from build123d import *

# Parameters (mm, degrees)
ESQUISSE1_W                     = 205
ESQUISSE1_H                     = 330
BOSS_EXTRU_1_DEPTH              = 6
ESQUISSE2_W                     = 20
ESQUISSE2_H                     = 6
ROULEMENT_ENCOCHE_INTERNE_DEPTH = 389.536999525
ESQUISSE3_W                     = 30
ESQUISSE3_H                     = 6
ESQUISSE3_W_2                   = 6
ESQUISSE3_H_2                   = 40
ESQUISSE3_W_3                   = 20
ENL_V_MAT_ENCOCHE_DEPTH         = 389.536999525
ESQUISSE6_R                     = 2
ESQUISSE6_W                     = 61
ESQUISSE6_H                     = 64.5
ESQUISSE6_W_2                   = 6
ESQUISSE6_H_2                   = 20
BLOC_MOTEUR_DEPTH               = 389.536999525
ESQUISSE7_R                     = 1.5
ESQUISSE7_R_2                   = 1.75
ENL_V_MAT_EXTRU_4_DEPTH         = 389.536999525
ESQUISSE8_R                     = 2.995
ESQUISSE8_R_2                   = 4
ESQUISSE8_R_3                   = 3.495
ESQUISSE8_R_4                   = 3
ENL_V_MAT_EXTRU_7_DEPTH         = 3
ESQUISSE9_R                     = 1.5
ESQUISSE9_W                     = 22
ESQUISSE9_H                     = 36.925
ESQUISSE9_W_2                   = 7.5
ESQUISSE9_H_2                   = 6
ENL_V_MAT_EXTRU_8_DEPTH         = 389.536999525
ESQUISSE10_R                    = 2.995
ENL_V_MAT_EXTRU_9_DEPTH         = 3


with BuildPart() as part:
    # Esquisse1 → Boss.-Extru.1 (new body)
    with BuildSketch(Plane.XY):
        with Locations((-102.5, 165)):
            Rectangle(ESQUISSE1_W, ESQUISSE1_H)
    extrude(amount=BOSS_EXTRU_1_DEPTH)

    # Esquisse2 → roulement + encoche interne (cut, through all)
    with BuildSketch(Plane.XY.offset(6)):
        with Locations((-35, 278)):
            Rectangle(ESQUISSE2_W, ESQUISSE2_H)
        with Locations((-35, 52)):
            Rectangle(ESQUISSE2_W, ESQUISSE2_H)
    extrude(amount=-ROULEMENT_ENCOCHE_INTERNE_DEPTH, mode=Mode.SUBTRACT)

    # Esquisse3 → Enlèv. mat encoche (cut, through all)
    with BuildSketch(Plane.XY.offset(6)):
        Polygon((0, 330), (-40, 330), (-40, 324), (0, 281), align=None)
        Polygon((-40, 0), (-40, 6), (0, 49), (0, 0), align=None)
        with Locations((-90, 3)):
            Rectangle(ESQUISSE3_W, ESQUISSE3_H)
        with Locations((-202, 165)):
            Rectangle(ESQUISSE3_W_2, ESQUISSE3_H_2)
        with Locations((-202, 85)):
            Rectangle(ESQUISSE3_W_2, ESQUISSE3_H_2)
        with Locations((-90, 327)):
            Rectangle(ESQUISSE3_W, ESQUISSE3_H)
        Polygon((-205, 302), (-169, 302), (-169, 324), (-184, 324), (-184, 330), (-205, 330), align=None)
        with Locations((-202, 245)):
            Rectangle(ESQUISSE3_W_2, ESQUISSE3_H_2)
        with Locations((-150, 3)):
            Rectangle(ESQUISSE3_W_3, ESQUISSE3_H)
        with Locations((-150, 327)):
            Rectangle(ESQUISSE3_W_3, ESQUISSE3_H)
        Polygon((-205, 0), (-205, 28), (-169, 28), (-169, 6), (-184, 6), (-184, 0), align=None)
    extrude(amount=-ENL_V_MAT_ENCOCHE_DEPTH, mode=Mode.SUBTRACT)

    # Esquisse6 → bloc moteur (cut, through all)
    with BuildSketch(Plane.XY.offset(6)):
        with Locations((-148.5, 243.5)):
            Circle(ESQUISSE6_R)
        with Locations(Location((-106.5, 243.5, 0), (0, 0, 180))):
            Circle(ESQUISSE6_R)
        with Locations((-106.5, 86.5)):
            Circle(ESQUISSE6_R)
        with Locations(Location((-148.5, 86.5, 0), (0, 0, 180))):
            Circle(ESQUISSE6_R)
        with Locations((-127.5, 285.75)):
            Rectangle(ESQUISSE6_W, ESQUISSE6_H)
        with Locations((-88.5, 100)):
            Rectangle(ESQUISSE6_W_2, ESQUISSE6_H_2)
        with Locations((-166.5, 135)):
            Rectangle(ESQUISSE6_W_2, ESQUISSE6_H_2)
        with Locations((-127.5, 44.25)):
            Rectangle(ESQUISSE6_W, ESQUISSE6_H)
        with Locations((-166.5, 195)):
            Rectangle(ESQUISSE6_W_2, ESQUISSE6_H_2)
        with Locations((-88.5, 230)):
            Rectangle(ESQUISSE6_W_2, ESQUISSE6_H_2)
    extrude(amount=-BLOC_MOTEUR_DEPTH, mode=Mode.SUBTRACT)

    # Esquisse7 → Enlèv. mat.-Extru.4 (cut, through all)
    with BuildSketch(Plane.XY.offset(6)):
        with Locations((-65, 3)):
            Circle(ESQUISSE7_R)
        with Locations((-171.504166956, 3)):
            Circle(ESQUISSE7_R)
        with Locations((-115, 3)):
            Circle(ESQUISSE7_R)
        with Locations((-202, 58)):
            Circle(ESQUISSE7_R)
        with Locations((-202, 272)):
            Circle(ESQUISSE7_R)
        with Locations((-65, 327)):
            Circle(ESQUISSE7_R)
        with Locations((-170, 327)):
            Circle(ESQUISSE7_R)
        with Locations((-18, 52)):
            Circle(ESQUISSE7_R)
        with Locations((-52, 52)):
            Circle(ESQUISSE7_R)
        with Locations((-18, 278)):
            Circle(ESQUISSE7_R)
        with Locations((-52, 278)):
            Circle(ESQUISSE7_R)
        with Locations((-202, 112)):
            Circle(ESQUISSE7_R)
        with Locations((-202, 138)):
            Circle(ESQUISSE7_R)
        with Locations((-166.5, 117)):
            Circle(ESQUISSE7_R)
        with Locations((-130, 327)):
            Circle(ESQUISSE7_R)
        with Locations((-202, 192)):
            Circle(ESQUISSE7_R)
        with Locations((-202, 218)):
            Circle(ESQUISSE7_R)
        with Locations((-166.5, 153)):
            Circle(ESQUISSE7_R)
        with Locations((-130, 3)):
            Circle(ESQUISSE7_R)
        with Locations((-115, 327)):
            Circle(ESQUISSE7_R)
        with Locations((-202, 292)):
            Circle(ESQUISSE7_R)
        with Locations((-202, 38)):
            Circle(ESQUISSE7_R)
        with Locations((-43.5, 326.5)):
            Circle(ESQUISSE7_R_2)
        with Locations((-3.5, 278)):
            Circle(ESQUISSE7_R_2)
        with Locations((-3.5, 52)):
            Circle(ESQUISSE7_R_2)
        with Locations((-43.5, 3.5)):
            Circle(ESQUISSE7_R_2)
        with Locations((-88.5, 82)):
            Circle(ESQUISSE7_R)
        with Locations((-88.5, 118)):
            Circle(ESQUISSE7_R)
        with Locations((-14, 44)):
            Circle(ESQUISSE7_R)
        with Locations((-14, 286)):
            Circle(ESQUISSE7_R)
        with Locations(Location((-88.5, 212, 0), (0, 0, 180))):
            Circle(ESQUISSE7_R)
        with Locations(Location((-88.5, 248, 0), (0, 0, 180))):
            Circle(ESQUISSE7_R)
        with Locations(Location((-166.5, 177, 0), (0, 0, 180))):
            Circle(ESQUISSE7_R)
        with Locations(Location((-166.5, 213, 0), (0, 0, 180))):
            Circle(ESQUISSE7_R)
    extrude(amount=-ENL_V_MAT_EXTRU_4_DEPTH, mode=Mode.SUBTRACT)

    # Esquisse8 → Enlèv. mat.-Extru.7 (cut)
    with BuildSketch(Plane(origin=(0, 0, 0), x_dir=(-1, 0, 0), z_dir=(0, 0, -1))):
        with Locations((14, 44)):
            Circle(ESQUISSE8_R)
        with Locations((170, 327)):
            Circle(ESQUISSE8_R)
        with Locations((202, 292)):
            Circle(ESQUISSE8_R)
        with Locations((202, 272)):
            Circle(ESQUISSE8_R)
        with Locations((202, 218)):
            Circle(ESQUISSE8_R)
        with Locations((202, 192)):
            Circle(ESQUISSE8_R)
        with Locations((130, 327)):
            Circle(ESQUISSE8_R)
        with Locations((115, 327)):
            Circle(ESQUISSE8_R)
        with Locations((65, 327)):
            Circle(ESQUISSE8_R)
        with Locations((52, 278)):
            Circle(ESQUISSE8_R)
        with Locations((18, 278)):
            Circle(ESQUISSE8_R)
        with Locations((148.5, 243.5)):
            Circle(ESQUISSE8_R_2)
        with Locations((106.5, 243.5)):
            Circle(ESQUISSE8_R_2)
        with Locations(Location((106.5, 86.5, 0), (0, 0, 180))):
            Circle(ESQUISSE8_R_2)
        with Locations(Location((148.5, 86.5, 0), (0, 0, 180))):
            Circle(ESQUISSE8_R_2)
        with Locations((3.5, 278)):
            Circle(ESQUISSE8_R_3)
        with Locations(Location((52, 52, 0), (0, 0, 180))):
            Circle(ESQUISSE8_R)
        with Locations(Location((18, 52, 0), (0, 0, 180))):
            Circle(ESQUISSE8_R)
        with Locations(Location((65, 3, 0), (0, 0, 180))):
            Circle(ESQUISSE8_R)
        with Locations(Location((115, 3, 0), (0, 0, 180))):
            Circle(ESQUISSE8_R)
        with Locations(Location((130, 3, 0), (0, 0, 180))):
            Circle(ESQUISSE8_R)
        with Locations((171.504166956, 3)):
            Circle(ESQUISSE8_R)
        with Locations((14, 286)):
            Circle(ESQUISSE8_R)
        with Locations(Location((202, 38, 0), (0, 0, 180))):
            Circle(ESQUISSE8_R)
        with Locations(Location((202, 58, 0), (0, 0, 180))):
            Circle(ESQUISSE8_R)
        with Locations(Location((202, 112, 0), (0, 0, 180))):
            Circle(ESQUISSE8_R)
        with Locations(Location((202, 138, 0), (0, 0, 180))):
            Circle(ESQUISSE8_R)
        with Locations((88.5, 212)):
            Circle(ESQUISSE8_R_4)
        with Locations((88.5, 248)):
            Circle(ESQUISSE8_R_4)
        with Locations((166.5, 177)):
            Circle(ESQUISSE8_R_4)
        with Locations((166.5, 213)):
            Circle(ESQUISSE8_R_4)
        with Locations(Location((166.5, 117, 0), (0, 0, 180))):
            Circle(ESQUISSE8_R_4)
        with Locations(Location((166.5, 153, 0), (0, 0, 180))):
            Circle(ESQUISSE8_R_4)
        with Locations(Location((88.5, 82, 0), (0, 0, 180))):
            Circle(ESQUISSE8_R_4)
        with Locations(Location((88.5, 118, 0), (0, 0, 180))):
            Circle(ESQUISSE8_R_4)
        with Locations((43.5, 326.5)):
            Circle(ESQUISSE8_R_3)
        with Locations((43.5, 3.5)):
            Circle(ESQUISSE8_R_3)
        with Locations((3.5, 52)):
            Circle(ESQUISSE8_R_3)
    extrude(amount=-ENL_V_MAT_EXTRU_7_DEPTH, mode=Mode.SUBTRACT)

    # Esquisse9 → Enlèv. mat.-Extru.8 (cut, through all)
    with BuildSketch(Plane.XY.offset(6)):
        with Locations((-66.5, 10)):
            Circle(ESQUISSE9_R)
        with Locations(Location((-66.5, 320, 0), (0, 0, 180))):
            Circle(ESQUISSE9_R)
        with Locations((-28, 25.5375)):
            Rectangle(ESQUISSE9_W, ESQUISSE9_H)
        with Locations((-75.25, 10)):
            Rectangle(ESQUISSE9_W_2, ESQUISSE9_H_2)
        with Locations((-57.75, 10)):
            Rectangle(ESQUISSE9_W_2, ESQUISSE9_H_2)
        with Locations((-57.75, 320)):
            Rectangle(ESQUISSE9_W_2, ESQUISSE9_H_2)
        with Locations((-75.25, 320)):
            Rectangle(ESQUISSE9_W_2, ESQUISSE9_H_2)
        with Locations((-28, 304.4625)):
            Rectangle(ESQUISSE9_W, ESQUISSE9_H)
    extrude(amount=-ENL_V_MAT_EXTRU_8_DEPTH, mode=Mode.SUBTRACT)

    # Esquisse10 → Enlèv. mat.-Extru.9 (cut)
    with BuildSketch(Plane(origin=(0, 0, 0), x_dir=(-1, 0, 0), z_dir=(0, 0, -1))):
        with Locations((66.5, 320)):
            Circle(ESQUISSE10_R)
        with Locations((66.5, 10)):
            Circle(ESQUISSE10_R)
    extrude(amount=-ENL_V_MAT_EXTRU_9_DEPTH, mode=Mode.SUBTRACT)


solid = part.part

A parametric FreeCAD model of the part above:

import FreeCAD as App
import Part
import Sketcher
Q = App.Units.Quantity


def add_polygon(sketch, points):
    """Adds a closed chain of lines whose ends are joined by coincident constraints."""
    first, n = sketch.GeometryCount, len(points)
    for a, b in zip(points, points[1:] + points[:1]):
        sketch.addGeometry(Part.LineSegment(App.Vector(*a, 0), App.Vector(*b, 0)), False)
    for i in range(n):
        sketch.addConstraint(Sketcher.Constraint("Coincident", first + i, 2, first + (i + 1) % n, 1))

doc = App.newDocument("Part")
body = doc.addObject("PartDesign::Body", "Body")

sketch1 = body.newObject("Sketcher::SketchObject", "Sketch")
sketch1.AttachmentSupport = (doc.getObject("XY_Plane"), [""])
sketch1.MapMode = "FlatFace"
add_polygon(sketch1, [(-205, 330), (-205, 0), (0, 0), (0, 330)])
sketch1.addConstraint(Sketcher.Constraint("Vertical", 0))
sketch1.addConstraint(Sketcher.Constraint("Horizontal", 1))
sketch1.addConstraint(Sketcher.Constraint("Vertical", 2))
sketch1.addConstraint(Sketcher.Constraint("Horizontal", 3))
sketch1.addConstraint(Sketcher.Constraint("Coincident", 1, 2, -1, 1))
sketch1.addConstraint(Sketcher.Constraint("DistanceX", 1, 1, 1, 2, Q("205 mm")))
sketch1.addConstraint(Sketcher.Constraint("DistanceY", 0, 2, 0, 1, Q("330 mm")))
pad1 = body.newObject("PartDesign::Pad", "Pad")
pad1.Profile = sketch1
pad1.Length = 6

sketch2 = body.newObject("Sketcher::SketchObject", "Sketch001")
sketch2.AttachmentSupport = (doc.getObject("XY_Plane"), [""])
sketch2.MapMode = "FlatFace"
sketch2.AttachmentOffset = App.Placement(App.Vector(0, 0, 6), App.Rotation())
add_polygon(sketch2, [(-45, 281), (-45, 275), (-25, 275), (-25, 281)])
add_polygon(sketch2, [(-45, 55), (-45, 49), (-25, 49), (-25, 55)])
sketch2.addConstraint(Sketcher.Constraint("Vertical", 0))
sketch2.addConstraint(Sketcher.Constraint("Horizontal", 1))
sketch2.addConstraint(Sketcher.Constraint("Vertical", 2))
sketch2.addConstraint(Sketcher.Constraint("Horizontal", 3))
sketch2.addConstraint(Sketcher.Constraint("Vertical", 4))
sketch2.addConstraint(Sketcher.Constraint("Horizontal", 5))
sketch2.addConstraint(Sketcher.Constraint("Vertical", 6))
sketch2.addConstraint(Sketcher.Constraint("Horizontal", 7))
sketch2.addConstraint(Sketcher.Constraint("Vertical", 3, 2, 4, 2))
sketch2.addConstraint(Sketcher.Constraint("Vertical", 2, 2, 5, 2))
sketch2.addConstraint(Sketcher.Constraint("Equal", 2, 4))
sketch2.addConstraint(Sketcher.Constraint("DistanceX", 1, 1, 1, 2, Q("20 mm")))
sketch2.addConstraint(Sketcher.Constraint("DistanceY", 0, 2, 0, 1, Q("6 mm")))
sketch2.addConstraint(Sketcher.Constraint("DistanceX", 0, 2, -1, 1, Q("45 mm")))
sketch2.addConstraint(Sketcher.Constraint("DistanceY", -1, 1, 0, 2, Q("275 mm")))
sketch2.addConstraint(Sketcher.Constraint("DistanceY", -1, 1, 4, 2, Q("49 mm")))
pocket1 = body.newObject("PartDesign::Pocket", "Pocket")
pocket1.Profile = sketch2
pocket1.Type = "ThroughAll"

sketch3 = body.newObject("Sketcher::SketchObject", "Sketch002")
sketch3.AttachmentSupport = (doc.getObject("XY_Plane"), [""])
sketch3.MapMode = "FlatFace"
sketch3.AttachmentOffset = App.Placement(App.Vector(0, 0, 6), App.Rotation())
add_polygon(sketch3, [(0, 330), (-40, 330), (-40, 324), (0, 281)])
add_polygon(sketch3, [(-40, 6), (-40, 0), (0, 0), (0, 49)])
add_polygon(sketch3, [(-105, 6), (-105, 0), (-75, 0), (-75, 6)])
add_polygon(sketch3, [(-205, 185), (-205, 145), (-199, 145), (-199, 185)])
add_polygon(sketch3, [(-205, 105), (-205, 65), (-199, 65), (-199, 105)])
add_polygon(sketch3, [(-105, 330), (-105, 324), (-75, 324), (-75, 330)])
add_polygon(sketch3, [(-205, 302), (-169, 302), (-169, 324), (-184, 324), (-184, 330), (-205, 330)])
add_polygon(sketch3, [(-205, 265), (-205, 225), (-199, 225), (-199, 265)])
add_polygon(sketch3, [(-160, 6), (-160, 0), (-140, 0), (-140, 6)])
add_polygon(sketch3, [(-160, 330), (-160, 324), (-140, 324), (-140, 330)])
add_polygon(sketch3, [(-205, 28), (-205, 0), (-184, 0), (-184, 6), (-169, 6), (-169, 28)])
sketch3.addConstraint(Sketcher.Constraint("Horizontal", 0))
sketch3.addConstraint(Sketcher.Constraint("Vertical", 1))
sketch3.addConstraint(Sketcher.Constraint("Vertical", 3))
sketch3.addConstraint(Sketcher.Constraint("Vertical", 4))
sketch3.addConstraint(Sketcher.Constraint("Horizontal", 5))
sketch3.addConstraint(Sketcher.Constraint("Vertical", 6))
sketch3.addConstraint(Sketcher.Constraint("Vertical", 8))
sketch3.addConstraint(Sketcher.Constraint("Horizontal", 9))
sketch3.addConstraint(Sketcher.Constraint("Vertical", 10))
sketch3.addConstraint(Sketcher.Constraint("Horizontal", 11))
sketch3.addConstraint(Sketcher.Constraint("Vertical", 12))
sketch3.addConstraint(Sketcher.Constraint("Horizontal", 13))
sketch3.addConstraint(Sketcher.Constraint("Vertical", 14))
sketch3.addConstraint(Sketcher.Constraint("Horizontal", 15))
sketch3.addConstraint(Sketcher.Constraint("Vertical", 16))
sketch3.addConstraint(Sketcher.Constraint("Horizontal", 17))
sketch3.addConstraint(Sketcher.Constraint("Vertical", 18))
sketch3.addConstraint(Sketcher.Constraint("Horizontal", 19))
sketch3.addConstraint(Sketcher.Constraint("Vertical", 20))
sketch3.addConstraint(Sketcher.Constraint("Horizontal", 21))
sketch3.addConstraint(Sketcher.Constraint("Vertical", 22))
sketch3.addConstraint(Sketcher.Constraint("Horizontal", 23))
sketch3.addConstraint(Sketcher.Constraint("Horizontal", 24))
sketch3.addConstraint(Sketcher.Constraint("Vertical", 25))
sketch3.addConstraint(Sketcher.Constraint("Horizontal", 26))
sketch3.addConstraint(Sketcher.Constraint("Vertical", 27))
sketch3.addConstraint(Sketcher.Constraint("Horizontal", 28))
sketch3.addConstraint(Sketcher.Constraint("Vertical", 29))
sketch3.addConstraint(Sketcher.Constraint("Vertical", 30))
sketch3.addConstraint(Sketcher.Constraint("Horizontal", 31))
sketch3.addConstraint(Sketcher.Constraint("Vertical", 32))
sketch3.addConstraint(Sketcher.Constraint("Horizontal", 33))
sketch3.addConstraint(Sketcher.Constraint("Vertical", 34))
sketch3.addConstraint(Sketcher.Constraint("Horizontal", 35))
sketch3.addConstraint(Sketcher.Constraint("Vertical", 36))
sketch3.addConstraint(Sketcher.Constraint("Horizontal", 37))
sketch3.addConstraint(Sketcher.Constraint("Vertical", 38))
sketch3.addConstraint(Sketcher.Constraint("Horizontal", 39))
sketch3.addConstraint(Sketcher.Constraint("Vertical", 40))
sketch3.addConstraint(Sketcher.Constraint("Horizontal", 41))
sketch3.addConstraint(Sketcher.Constraint("Vertical", 42))
sketch3.addConstraint(Sketcher.Constraint("Horizontal", 43))
sketch3.addConstraint(Sketcher.Constraint("Vertical", 44))
sketch3.addConstraint(Sketcher.Constraint("Horizontal", 45))
sketch3.addConstraint(Sketcher.Constraint("Vertical", 46))
sketch3.addConstraint(Sketcher.Constraint("Horizontal", 47))
sketch3.addConstraint(Sketcher.Constraint("Coincident", 5, 2, -1, 1))
sketch3.addConstraint(Sketcher.Constraint("PointOnObject", 2, 2, -2))
sketch3.addConstraint(Sketcher.Constraint("PointOnObject", 8, 2, -1))
sketch3.addConstraint(Sketcher.Constraint("PointOnObject", 34, 2, -1))
sketch3.addConstraint(Sketcher.Constraint("PointOnObject", 42, 2, -1))
sketch3.addConstraint(Sketcher.Constraint("Horizontal", 7, 2, 10, 2))
sketch3.addConstraint(Sketcher.Constraint("Horizontal", 1, 2, 20, 2))
sketch3.addConstraint(Sketcher.Constraint("Horizontal", 3, 2, 22, 2))
sketch3.addConstraint(Sketcher.Constraint("Horizontal", 21, 2, 25, 2))
sketch3.addConstraint(Sketcher.Constraint("Horizontal", 23, 2, 27, 2))
sketch3.addConstraint(Sketcher.Constraint("Horizontal", 11, 2, 36, 2))
sketch3.addConstraint(Sketcher.Constraint("Horizontal", 26, 2, 38, 2))
sketch3.addConstraint(Sketcher.Constraint("Horizontal", 28, 2, 40, 2))
sketch3.addConstraint(Sketcher.Constraint("Horizontal", 37, 2, 44, 2))
sketch3.addConstraint(Sketcher.Constraint("Vertical", 1, 2, 4, 2))
sketch3.addConstraint(Sketcher.Constraint("Vertical", 15, 2, 16, 2))
sketch3.addConstraint(Sketcher.Constraint("Vertical", 14, 2, 17, 2))
sketch3.addConstraint(Sketcher.Constraint("Vertical", 11, 2, 20, 2))
sketch3.addConstraint(Sketcher.Constraint("Vertical", 10, 2, 21, 2))
sketch3.addConstraint(Sketcher.Constraint("Vertical", 19, 2, 28, 2))
sketch3.addConstraint(Sketcher.Constraint("Vertical", 29, 2, 30, 2))
sketch3.addConstraint(Sketcher.Constraint("Vertical", 18, 2, 31, 2))
sketch3.addConstraint(Sketcher.Constraint("Vertical", 37, 2, 38, 2))
sketch3.addConstraint(Sketcher.Constraint("Vertical", 36, 2, 39, 2))
sketch3.addConstraint(Sketcher.Constraint("Vertical", 33, 2, 42, 2))
sketch3.addConstraint(Sketcher.Constraint("Vertical", 27, 2, 43, 2))
sketch3.addConstraint(Sketcher.Constraint("Vertical", 25, 2, 45, 2))
sketch3.addConstraint(Sketcher.Constraint("Equal", 33, 1))
sketch3.addConstraint(Sketcher.Constraint("Equal", 1, 4))
sketch3.addConstraint(Sketcher.Constraint("Equal", 3, 6))
sketch3.addConstraint(Sketcher.Constraint("Equal", 5, 12))
sketch3.addConstraint(Sketcher.Constraint("Equal", 14, 16))
sketch3.addConstraint(Sketcher.Constraint("Equal", 18, 30))
sketch3.addConstraint(Sketcher.Constraint("Equal", 29, 42))
sketch3.addConstraint(Sketcher.Constraint("DistanceX", 0, 2, 0, 1, Q("40 mm")))
sketch3.addConstraint(Sketcher.Constraint("DistanceX", 9, 1, 9, 2, Q("30 mm")))
sketch3.addConstraint(Sketcher.Constraint("DistanceX", 13, 1, 13, 2, Q("6 mm")))
sketch3.addConstraint(Sketcher.Constraint("DistanceX", 24, 1, 24, 2, Q("36 mm")))
sketch3.addConstraint(Sketcher.Constraint("DistanceX", 26, 2, 26, 1, Q("15 mm")))
sketch3.addConstraint(Sketcher.Constraint("DistanceX", 35, 1, 35, 2, Q("20 mm")))
sketch3.addConstraint(Sketcher.Constraint("DistanceY", 3, 1, 3, 2, Q("49 mm")))
sketch3.addConstraint(Sketcher.Constraint("DistanceY", 25, 1, 25, 2, Q("22 mm")))
sketch3.addConstraint(Sketcher.Constraint("DistanceY", -1, 1, 0, 2, Q("330 mm")))
sketch3.addConstraint(Sketcher.Constraint("DistanceX", 8, 2, -1, 1, Q("105 mm")))
sketch3.addConstraint(Sketcher.Constraint("DistanceX", 12, 2, -1, 1, Q("205 mm")))
sketch3.addConstraint(Sketcher.Constraint("DistanceY", -1, 1, 12, 2, Q("145 mm")))
sketch3.addConstraint(Sketcher.Constraint("DistanceY", -1, 1, 16, 2, Q("65 mm")))
sketch3.addConstraint(Sketcher.Constraint("DistanceY", -1, 1, 30, 2, Q("225 mm")))
sketch3.addConstraint(Sketcher.Constraint("DistanceX", 34, 2, -1, 1, Q("160 mm")))
pocket2 = body.newObject("PartDesign::Pocket", "Pocket001")
pocket2.Profile = sketch3
pocket2.Type = "ThroughAll"

sketch4 = body.newObject("Sketcher::SketchObject", "Sketch003")
sketch4.AttachmentSupport = (doc.getObject("XY_Plane"), [""])
sketch4.MapMode = "FlatFace"
sketch4.AttachmentOffset = App.Placement(App.Vector(0, 0, 6), App.Rotation())
sketch4.addGeometry(Part.Circle(App.Vector(-148.5, 243.5, 0), App.Vector(0, 0, 1), 2), False)
sketch4.addGeometry(Part.Circle(App.Vector(-106.5, 243.5, 0), App.Vector(0, 0, 1), 2), False)
sketch4.addGeometry(Part.Circle(App.Vector(-106.5, 86.5, 0), App.Vector(0, 0, 1), 2), False)
sketch4.addGeometry(Part.Circle(App.Vector(-148.5, 86.5, 0), App.Vector(0, 0, 1), 2), False)
add_polygon(sketch4, [(-158, 318), (-158, 253.5), (-97, 253.5), (-97, 318)])
add_polygon(sketch4, [(-91.5, 110), (-91.5, 90), (-85.5, 90), (-85.5, 110)])
add_polygon(sketch4, [(-169.5, 145), (-169.5, 125), (-163.5, 125), (-163.5, 145)])
add_polygon(sketch4, [(-158, 76.5), (-158, 12), (-97, 12), (-97, 76.5)])
add_polygon(sketch4, [(-169.5, 205), (-169.5, 185), (-163.5, 185), (-163.5, 205)])
add_polygon(sketch4, [(-91.5, 240), (-91.5, 220), (-85.5, 220), (-85.5, 240)])
sketch4.addConstraint(Sketcher.Constraint("Vertical", 4))
sketch4.addConstraint(Sketcher.Constraint("Horizontal", 5))
sketch4.addConstraint(Sketcher.Constraint("Vertical", 6))
sketch4.addConstraint(Sketcher.Constraint("Horizontal", 7))
sketch4.addConstraint(Sketcher.Constraint("Vertical", 8))
sketch4.addConstraint(Sketcher.Constraint("Horizontal", 9))
sketch4.addConstraint(Sketcher.Constraint("Vertical", 10))
sketch4.addConstraint(Sketcher.Constraint("Horizontal", 11))
sketch4.addConstraint(Sketcher.Constraint("Vertical", 12))
sketch4.addConstraint(Sketcher.Constraint("Horizontal", 13))
sketch4.addConstraint(Sketcher.Constraint("Vertical", 14))
sketch4.addConstraint(Sketcher.Constraint("Horizontal", 15))
sketch4.addConstraint(Sketcher.Constraint("Vertical", 16))
sketch4.addConstraint(Sketcher.Constraint("Horizontal", 17))
sketch4.addConstraint(Sketcher.Constraint("Vertical", 18))
sketch4.addConstraint(Sketcher.Constraint("Horizontal", 19))
sketch4.addConstraint(Sketcher.Constraint("Vertical", 20))
sketch4.addConstraint(Sketcher.Constraint("Horizontal", 21))
sketch4.addConstraint(Sketcher.Constraint("Vertical", 22))
sketch4.addConstraint(Sketcher.Constraint("Horizontal", 23))
sketch4.addConstraint(Sketcher.Constraint("Vertical", 24))
sketch4.addConstraint(Sketcher.Constraint("Horizontal", 25))
sketch4.addConstraint(Sketcher.Constraint("Vertical", 26))
sketch4.addConstraint(Sketcher.Constraint("Horizontal", 27))
sketch4.addConstraint(Sketcher.Constraint("Equal", 0, 1))
sketch4.addConstraint(Sketcher.Constraint("Equal", 1, 2))
sketch4.addConstraint(Sketcher.Constraint("Equal", 2, 3))
sketch4.addConstraint(Sketcher.Constraint("Horizontal", 0, 3, 1, 3))
sketch4.addConstraint(Sketcher.Constraint("Horizontal", 2, 3, 3, 3))
sketch4.addConstraint(Sketcher.Constraint("Vertical", 1, 3, 2, 3))
sketch4.addConstraint(Sketcher.Constraint("Vertical", 0, 3, 3, 3))
sketch4.addConstraint(Sketcher.Constraint("Vertical", 7, 2, 16, 2))
sketch4.addConstraint(Sketcher.Constraint("Vertical", 6, 2, 17, 2))
sketch4.addConstraint(Sketcher.Constraint("Vertical", 15, 2, 20, 2))
sketch4.addConstraint(Sketcher.Constraint("Vertical", 14, 2, 21, 2))
sketch4.addConstraint(Sketcher.Constraint("Vertical", 11, 2, 24, 2))
sketch4.addConstraint(Sketcher.Constraint("Vertical", 10, 2, 25, 2))
sketch4.addConstraint(Sketcher.Constraint("Equal", 11, 13))
sketch4.addConstraint(Sketcher.Constraint("Equal", 10, 12))
sketch4.addConstraint(Sketcher.Constraint("Equal", 6, 16))
sketch4.addConstraint(Sketcher.Constraint("Equal", 14, 20))
sketch4.addConstraint(Sketcher.Constraint("Equal", 22, 24))
sketch4.addConstraint(Sketcher.Constraint("Diameter", 0, Q("4 mm")))
sketch4.addConstraint(Sketcher.Constraint("DistanceX", 5, 1, 5, 2, Q("61 mm")))
sketch4.addConstraint(Sketcher.Constraint("DistanceX", 9, 1, 9, 2, Q("6 mm")))
sketch4.addConstraint(Sketcher.Constraint("DistanceY", 8, 2, 8, 1, Q("20 mm")))
sketch4.addConstraint(Sketcher.Constraint("DistanceY", 4, 2, 4, 1, Q("64.5 mm")))
sketch4.addConstraint(Sketcher.Constraint("DistanceX", 4, 2, -1, 1, Q("158 mm")))
sketch4.addConstraint(Sketcher.Constraint("DistanceY", -1, 1, 6, 2, Q("318 mm")))
sketch4.addConstraint(Sketcher.Constraint("DistanceY", -1, 1, 8, 2, Q("90 mm")))
sketch4.addConstraint(Sketcher.Constraint("DistanceY", -1, 1, 12, 2, Q("125 mm")))
sketch4.addConstraint(Sketcher.Constraint("DistanceY", -1, 1, 16, 2, Q("12 mm")))
sketch4.addConstraint(Sketcher.Constraint("DistanceY", -1, 1, 20, 2, Q("185 mm")))
sketch4.addConstraint(Sketcher.Constraint("DistanceY", -1, 1, 24, 2, Q("220 mm")))
sketch4.addConstraint(Sketcher.Constraint("DistanceX", 0, 3, 1, 3, Q("42 mm")))
sketch4.addConstraint(Sketcher.Constraint("DistanceY", 2, 3, 1, 3, Q("157 mm")))
sketch4.addConstraint(Sketcher.Constraint("DistanceY", 0, 3, 4, 2, Q("10 mm")))
sketch4.addConstraint(Sketcher.Constraint("DistanceX", 2, 3, 8, 2, Q("15 mm")))
sketch4.addConstraint(Sketcher.Constraint("DistanceX", 12, 2, 3, 3, Q("21 mm")))
sketch4.addConstraint(Sketcher.Constraint("DistanceX", 0, 3, -1, 1, Q("148.5 mm")))
pocket3 = body.newObject("PartDesign::Pocket", "Pocket002")
pocket3.Profile = sketch4
pocket3.Type = "ThroughAll"

sketch5 = body.newObject("Sketcher::SketchObject", "Sketch004")
sketch5.AttachmentSupport = (doc.getObject("XY_Plane"), [""])
sketch5.MapMode = "FlatFace"
sketch5.AttachmentOffset = App.Placement(App.Vector(0, 0, 6), App.Rotation())
sketch5.addGeometry(Part.Circle(App.Vector(-65, 3, 0), App.Vector(0, 0, 1), 1.5), False)
sketch5.addGeometry(Part.Circle(App.Vector(-171.5, 3, 0), App.Vector(0, 0, 1), 1.5), False)
sketch5.addGeometry(Part.Circle(App.Vector(-115, 3, 0), App.Vector(0, 0, 1), 1.5), False)
sketch5.addGeometry(Part.Circle(App.Vector(-202, 58, 0), App.Vector(0, 0, 1), 1.5), False)
sketch5.addGeometry(Part.Circle(App.Vector(-202, 272, 0), App.Vector(0, 0, 1), 1.5), False)
sketch5.addGeometry(Part.Circle(App.Vector(-65, 327, 0), App.Vector(0, 0, 1), 1.5), False)
sketch5.addGeometry(Part.Circle(App.Vector(-170, 327, 0), App.Vector(0, 0, 1), 1.5), False)
sketch5.addGeometry(Part.Circle(App.Vector(-18, 52, 0), App.Vector(0, 0, 1), 1.5), False)
sketch5.addGeometry(Part.Circle(App.Vector(-52, 52, 0), App.Vector(0, 0, 1), 1.5), False)
sketch5.addGeometry(Part.Circle(App.Vector(-18, 278, 0), App.Vector(0, 0, 1), 1.5), False)
sketch5.addGeometry(Part.Circle(App.Vector(-52, 278, 0), App.Vector(0, 0, 1), 1.5), False)
sketch5.addGeometry(Part.Circle(App.Vector(-202, 112, 0), App.Vector(0, 0, 1), 1.5), False)
sketch5.addGeometry(Part.Circle(App.Vector(-202, 138, 0), App.Vector(0, 0, 1), 1.5), False)
sketch5.addGeometry(Part.Circle(App.Vector(-166.5, 117, 0), App.Vector(0, 0, 1), 1.5), False)
sketch5.addGeometry(Part.Circle(App.Vector(-130, 327, 0), App.Vector(0, 0, 1), 1.5), False)
sketch5.addGeometry(Part.Circle(App.Vector(-202, 192, 0), App.Vector(0, 0, 1), 1.5), False)
sketch5.addGeometry(Part.Circle(App.Vector(-202, 218, 0), App.Vector(0, 0, 1), 1.5), False)
sketch5.addGeometry(Part.Circle(App.Vector(-166.5, 153, 0), App.Vector(0, 0, 1), 1.5), False)
sketch5.addGeometry(Part.Circle(App.Vector(-130, 3, 0), App.Vector(0, 0, 1), 1.5), False)
sketch5.addGeometry(Part.Circle(App.Vector(-115, 327, 0), App.Vector(0, 0, 1), 1.5), False)
sketch5.addGeometry(Part.Circle(App.Vector(-202, 292, 0), App.Vector(0, 0, 1), 1.5), False)
sketch5.addGeometry(Part.Circle(App.Vector(-202, 38, 0), App.Vector(0, 0, 1), 1.5), False)
sketch5.addGeometry(Part.Circle(App.Vector(-43.5, 326.5, 0), App.Vector(0, 0, 1), 1.8), False)
sketch5.addGeometry(Part.Circle(App.Vector(-3.5, 278, 0), App.Vector(0, 0, 1), 1.8), False)
sketch5.addGeometry(Part.Circle(App.Vector(-3.5, 52, 0), App.Vector(0, 0, 1), 1.8), False)
sketch5.addGeometry(Part.Circle(App.Vector(-43.5, 3.5, 0), App.Vector(0, 0, 1), 1.8), False)
sketch5.addGeometry(Part.Circle(App.Vector(-88.5, 82, 0), App.Vector(0, 0, 1), 1.5), False)
sketch5.addGeometry(Part.Circle(App.Vector(-88.5, 118, 0), App.Vector(0, 0, 1), 1.5), False)
sketch5.addGeometry(Part.Circle(App.Vector(-14, 44, 0), App.Vector(0, 0, 1), 1.5), False)
sketch5.addGeometry(Part.Circle(App.Vector(-14, 286, 0), App.Vector(0, 0, 1), 1.5), False)
sketch5.addGeometry(Part.Circle(App.Vector(-88.5, 212, 0), App.Vector(0, 0, 1), 1.5), False)
sketch5.addGeometry(Part.Circle(App.Vector(-88.5, 248, 0), App.Vector(0, 0, 1), 1.5), False)
sketch5.addGeometry(Part.Circle(App.Vector(-166.5, 177, 0), App.Vector(0, 0, 1), 1.5), False)
sketch5.addGeometry(Part.Circle(App.Vector(-166.5, 213, 0), App.Vector(0, 0, 1), 1.5), False)
sketch5.addConstraint(Sketcher.Constraint("Equal", 0, 1))
sketch5.addConstraint(Sketcher.Constraint("Equal", 1, 2))
sketch5.addConstraint(Sketcher.Constraint("Equal", 2, 3))
sketch5.addConstraint(Sketcher.Constraint("Equal", 3, 4))
sketch5.addConstraint(Sketcher.Constraint("Equal", 4, 5))
sketch5.addConstraint(Sketcher.Constraint("Equal", 5, 6))
sketch5.addConstraint(Sketcher.Constraint("Equal", 6, 7))
sketch5.addConstraint(Sketcher.Constraint("Equal", 7, 8))
sketch5.addConstraint(Sketcher.Constraint("Equal", 8, 9))
sketch5.addConstraint(Sketcher.Constraint("Equal", 9, 10))
sketch5.addConstraint(Sketcher.Constraint("Equal", 10, 11))
sketch5.addConstraint(Sketcher.Constraint("Equal", 11, 12))
sketch5.addConstraint(Sketcher.Constraint("Equal", 12, 13))
sketch5.addConstraint(Sketcher.Constraint("Equal", 13, 14))
sketch5.addConstraint(Sketcher.Constraint("Equal", 14, 15))
sketch5.addConstraint(Sketcher.Constraint("Equal", 15, 16))
sketch5.addConstraint(Sketcher.Constraint("Equal", 16, 17))
sketch5.addConstraint(Sketcher.Constraint("Equal", 17, 18))
sketch5.addConstraint(Sketcher.Constraint("Equal", 18, 19))
sketch5.addConstraint(Sketcher.Constraint("Equal", 19, 20))
sketch5.addConstraint(Sketcher.Constraint("Equal", 20, 21))
sketch5.addConstraint(Sketcher.Constraint("Equal", 22, 23))
sketch5.addConstraint(Sketcher.Constraint("Equal", 23, 24))
sketch5.addConstraint(Sketcher.Constraint("Equal", 24, 25))
sketch5.addConstraint(Sketcher.Constraint("Equal", 21, 26))
sketch5.addConstraint(Sketcher.Constraint("Equal", 26, 27))
sketch5.addConstraint(Sketcher.Constraint("Equal", 27, 28))
sketch5.addConstraint(Sketcher.Constraint("Equal", 28, 29))
sketch5.addConstraint(Sketcher.Constraint("Equal", 29, 30))
sketch5.addConstraint(Sketcher.Constraint("Equal", 30, 31))
sketch5.addConstraint(Sketcher.Constraint("Equal", 31, 32))
sketch5.addConstraint(Sketcher.Constraint("Equal", 32, 33))
sketch5.addConstraint(Sketcher.Constraint("Horizontal", 0, 3, 1, 3))
sketch5.addConstraint(Sketcher.Constraint("Horizontal", 1, 3, 2, 3))
sketch5.addConstraint(Sketcher.Constraint("Horizontal", 5, 3, 6, 3))
sketch5.addConstraint(Sketcher.Constraint("Horizontal", 7, 3, 8, 3))
sketch5.addConstraint(Sketcher.Constraint("Horizontal", 9, 3, 10, 3))
sketch5.addConstraint(Sketcher.Constraint("Horizontal", 6, 3, 14, 3))
sketch5.addConstraint(Sketcher.Constraint("Horizontal", 2, 3, 18, 3))
sketch5.addConstraint(Sketcher.Constraint("Horizontal", 14, 3, 19, 3))
sketch5.addConstraint(Sketcher.Constraint("Horizontal", 10, 3, 23, 3))
sketch5.addConstraint(Sketcher.Constraint("Horizontal", 8, 3, 24, 3))
sketch5.addConstraint(Sketcher.Constraint("Vertical", 3, 3, 4, 3))
sketch5.addConstraint(Sketcher.Constraint("Vertical", 0, 3, 5, 3))
sketch5.addConstraint(Sketcher.Constraint("Vertical", 7, 3, 9, 3))
sketch5.addConstraint(Sketcher.Constraint("Vertical", 8, 3, 10, 3))
sketch5.addConstraint(Sketcher.Constraint("Vertical", 4, 3, 11, 3))
sketch5.addConstraint(Sketcher.Constraint("Vertical", 11, 3, 12, 3))
sketch5.addConstraint(Sketcher.Constraint("Vertical", 12, 3, 15, 3))
sketch5.addConstraint(Sketcher.Constraint("Vertical", 15, 3, 16, 3))
sketch5.addConstraint(Sketcher.Constraint("Vertical", 13, 3, 17, 3))
sketch5.addConstraint(Sketcher.Constraint("Vertical", 14, 3, 18, 3))
sketch5.addConstraint(Sketcher.Constraint("Vertical", 2, 3, 19, 3))
sketch5.addConstraint(Sketcher.Constraint("Vertical", 16, 3, 20, 3))
sketch5.addConstraint(Sketcher.Constraint("Vertical", 20, 3, 21, 3))
sketch5.addConstraint(Sketcher.Constraint("Vertical", 23, 3, 24, 3))
sketch5.addConstraint(Sketcher.Constraint("Vertical", 22, 3, 25, 3))
sketch5.addConstraint(Sketcher.Constraint("Vertical", 26, 3, 27, 3))
sketch5.addConstraint(Sketcher.Constraint("Vertical", 28, 3, 29, 3))
sketch5.addConstraint(Sketcher.Constraint("Vertical", 27, 3, 30, 3))
sketch5.addConstraint(Sketcher.Constraint("Vertical", 30, 3, 31, 3))
sketch5.addConstraint(Sketcher.Constraint("Vertical", 17, 3, 32, 3))
sketch5.addConstraint(Sketcher.Constraint("Vertical", 32, 3, 33, 3))
sketch5.addConstraint(Sketcher.Constraint("Diameter", 0, Q("3 mm")))
sketch5.addConstraint(Sketcher.Constraint("Diameter", 22, Q("3.5 mm")))
sketch5.addConstraint(Sketcher.Constraint("DistanceX", 0, 3, -1, 1, Q("65 mm")))
sketch5.addConstraint(Sketcher.Constraint("DistanceY", -1, 1, 0, 3, Q("3 mm")))
sketch5.addConstraint(Sketcher.Constraint("DistanceX", 2, 3, -1, 1, Q("115 mm")))
sketch5.addConstraint(Sketcher.Constraint("DistanceX", 3, 3, -1, 1, Q("202 mm")))
sketch5.addConstraint(Sketcher.Constraint("DistanceY", -1, 1, 3, 3, Q("58 mm")))
sketch5.addConstraint(Sketcher.Constraint("DistanceY", -1, 1, 4, 3, Q("272 mm")))
sketch5.addConstraint(Sketcher.Constraint("DistanceY", -1, 1, 5, 3, Q("327 mm")))
sketch5.addConstraint(Sketcher.Constraint("DistanceX", 6, 3, -1, 1, Q("170 mm")))
sketch5.addConstraint(Sketcher.Constraint("DistanceX", 7, 3, -1, 1, Q("18 mm")))
sketch5.addConstraint(Sketcher.Constraint("DistanceY", -1, 1, 7, 3, Q("52 mm")))
sketch5.addConstraint(Sketcher.Constraint("DistanceX", 8, 3, -1, 1, Q("52 mm")))
sketch5.addConstraint(Sketcher.Constraint("DistanceY", -1, 1, 9, 3, Q("278 mm")))
sketch5.addConstraint(Sketcher.Constraint("DistanceY", -1, 1, 11, 3, Q("112 mm")))
sketch5.addConstraint(Sketcher.Constraint("DistanceY", -1, 1, 12, 3, Q("138 mm")))
sketch5.addConstraint(Sketcher.Constraint("DistanceY", -1, 1, 13, 3, Q("117 mm")))
sketch5.addConstraint(Sketcher.Constraint("DistanceX", 14, 3, -1, 1, Q("130 mm")))
sketch5.addConstraint(Sketcher.Constraint("DistanceY", -1, 1, 15, 3, Q("192 mm")))
sketch5.addConstraint(Sketcher.Constraint("DistanceY", -1, 1, 16, 3, Q("218 mm")))
sketch5.addConstraint(Sketcher.Constraint("DistanceY", -1, 1, 17, 3, Q("153 mm")))
sketch5.addConstraint(Sketcher.Constraint("DistanceY", -1, 1, 20, 3, Q("292 mm")))
sketch5.addConstraint(Sketcher.Constraint("DistanceY", -1, 1, 21, 3, Q("38 mm")))
sketch5.addConstraint(Sketcher.Constraint("DistanceY", -1, 1, 26, 3, Q("82 mm")))
sketch5.addConstraint(Sketcher.Constraint("DistanceY", -1, 1, 27, 3, Q("118 mm")))
sketch5.addConstraint(Sketcher.Constraint("DistanceX", 28, 3, -1, 1, Q("14 mm")))
sketch5.addConstraint(Sketcher.Constraint("DistanceY", -1, 1, 28, 3, Q("44 mm")))
sketch5.addConstraint(Sketcher.Constraint("DistanceY", -1, 1, 29, 3, Q("286 mm")))
sketch5.addConstraint(Sketcher.Constraint("DistanceY", -1, 1, 30, 3, Q("212 mm")))
sketch5.addConstraint(Sketcher.Constraint("DistanceY", -1, 1, 31, 3, Q("248 mm")))
sketch5.addConstraint(Sketcher.Constraint("DistanceY", -1, 1, 32, 3, Q("177 mm")))
sketch5.addConstraint(Sketcher.Constraint("DistanceY", -1, 1, 33, 3, Q("213 mm")))
sketch5.addConstraint(Sketcher.Constraint("DistanceX", 22, 3, 23, 3, Q("40 mm")))
sketch5.addConstraint(Sketcher.Constraint("DistanceX", 13, 3, 26, 3, Q("78 mm")))
sketch5.addConstraint(Sketcher.Constraint("DistanceX", 13, 3, -1, 1, Q("166.5 mm")))
sketch5.addConstraint(Sketcher.Constraint("DistanceX", 22, 3, -1, 1, Q("43.5 mm")))
sketch5.addConstraint(Sketcher.Constraint("DistanceY", -1, 1, 22, 3, Q("326.5 mm")))
sketch5.addConstraint(Sketcher.Constraint("DistanceY", -1, 1, 25, 3, Q("3.5 mm")))
sketch5.addConstraint(Sketcher.Constraint("DistanceX", 1, 3, -1, 1, Q("171.504167 mm")))
pocket4 = body.newObject("PartDesign::Pocket", "Pocket003")
pocket4.Profile = sketch5
pocket4.Type = "ThroughAll"

sketch6 = body.newObject("Sketcher::SketchObject", "Sketch005")
sketch6.AttachmentSupport = (doc.getObject("XY_Plane"), [""])
sketch6.MapMode = "FlatFace"
sketch6.addGeometry(Part.Circle(App.Vector(-14, 44, 0), App.Vector(0, 0, 1), 3), False)
sketch6.addGeometry(Part.Circle(App.Vector(-170, 327, 0), App.Vector(0, 0, 1), 3), False)
sketch6.addGeometry(Part.Circle(App.Vector(-202, 292, 0), App.Vector(0, 0, 1), 3), False)
sketch6.addGeometry(Part.Circle(App.Vector(-202, 272, 0), App.Vector(0, 0, 1), 3), False)
sketch6.addGeometry(Part.Circle(App.Vector(-202, 218, 0), App.Vector(0, 0, 1), 3), False)
sketch6.addGeometry(Part.Circle(App.Vector(-202, 192, 0), App.Vector(0, 0, 1), 3), False)
sketch6.addGeometry(Part.Circle(App.Vector(-130, 327, 0), App.Vector(0, 0, 1), 3), False)
sketch6.addGeometry(Part.Circle(App.Vector(-115, 327, 0), App.Vector(0, 0, 1), 3), False)
sketch6.addGeometry(Part.Circle(App.Vector(-65, 327, 0), App.Vector(0, 0, 1), 3), False)
sketch6.addGeometry(Part.Circle(App.Vector(-52, 278, 0), App.Vector(0, 0, 1), 3), False)
sketch6.addGeometry(Part.Circle(App.Vector(-18, 278, 0), App.Vector(0, 0, 1), 3), False)
sketch6.addGeometry(Part.Circle(App.Vector(-148.5, 243.5, 0), App.Vector(0, 0, 1), 4), False)
sketch6.addGeometry(Part.Circle(App.Vector(-106.5, 243.5, 0), App.Vector(0, 0, 1), 4), False)
sketch6.addGeometry(Part.Circle(App.Vector(-106.5, 86.5, 0), App.Vector(0, 0, 1), 4), False)
sketch6.addGeometry(Part.Circle(App.Vector(-148.5, 86.5, 0), App.Vector(0, 0, 1), 4), False)
sketch6.addGeometry(Part.Circle(App.Vector(-3.5, 278, 0), App.Vector(0, 0, 1), 3.5), False)
sketch6.addGeometry(Part.Circle(App.Vector(-52, 52, 0), App.Vector(0, 0, 1), 3), False)
sketch6.addGeometry(Part.Circle(App.Vector(-18, 52, 0), App.Vector(0, 0, 1), 3), False)
sketch6.addGeometry(Part.Circle(App.Vector(-65, 3, 0), App.Vector(0, 0, 1), 3), False)
sketch6.addGeometry(Part.Circle(App.Vector(-115, 3, 0), App.Vector(0, 0, 1), 3), False)
sketch6.addGeometry(Part.Circle(App.Vector(-130, 3, 0), App.Vector(0, 0, 1), 3), False)
sketch6.addGeometry(Part.Circle(App.Vector(-171.5, 3, 0), App.Vector(0, 0, 1), 3), False)
sketch6.addGeometry(Part.Circle(App.Vector(-14, 286, 0), App.Vector(0, 0, 1), 3), False)
sketch6.addGeometry(Part.Circle(App.Vector(-202, 38, 0), App.Vector(0, 0, 1), 3), False)
sketch6.addGeometry(Part.Circle(App.Vector(-202, 58, 0), App.Vector(0, 0, 1), 3), False)
sketch6.addGeometry(Part.Circle(App.Vector(-202, 112, 0), App.Vector(0, 0, 1), 3), False)
sketch6.addGeometry(Part.Circle(App.Vector(-202, 138, 0), App.Vector(0, 0, 1), 3), False)
sketch6.addGeometry(Part.Circle(App.Vector(-88.5, 212, 0), App.Vector(0, 0, 1), 3), False)
sketch6.addGeometry(Part.Circle(App.Vector(-88.5, 248, 0), App.Vector(0, 0, 1), 3), False)
sketch6.addGeometry(Part.Circle(App.Vector(-166.5, 177, 0), App.Vector(0, 0, 1), 3), False)
sketch6.addGeometry(Part.Circle(App.Vector(-166.5, 213, 0), App.Vector(0, 0, 1), 3), False)
sketch6.addGeometry(Part.Circle(App.Vector(-166.5, 117, 0), App.Vector(0, 0, 1), 3), False)
sketch6.addGeometry(Part.Circle(App.Vector(-166.5, 153, 0), App.Vector(0, 0, 1), 3), False)
sketch6.addGeometry(Part.Circle(App.Vector(-88.5, 82, 0), App.Vector(0, 0, 1), 3), False)
sketch6.addGeometry(Part.Circle(App.Vector(-88.5, 118, 0), App.Vector(0, 0, 1), 3), False)
sketch6.addGeometry(Part.Circle(App.Vector(-43.5, 326.5, 0), App.Vector(0, 0, 1), 3.5), False)
sketch6.addGeometry(Part.Circle(App.Vector(-43.5, 3.5, 0), App.Vector(0, 0, 1), 3.5), False)
sketch6.addGeometry(Part.Circle(App.Vector(-3.5, 52, 0), App.Vector(0, 0, 1), 3.5), False)
sketch6.addConstraint(Sketcher.Constraint("Equal", 0, 1))
sketch6.addConstraint(Sketcher.Constraint("Equal", 1, 2))
sketch6.addConstraint(Sketcher.Constraint("Equal", 2, 3))
sketch6.addConstraint(Sketcher.Constraint("Equal", 3, 4))
sketch6.addConstraint(Sketcher.Constraint("Equal", 4, 5))
sketch6.addConstraint(Sketcher.Constraint("Equal", 5, 6))
sketch6.addConstraint(Sketcher.Constraint("Equal", 6, 7))
sketch6.addConstraint(Sketcher.Constraint("Equal", 7, 8))
sketch6.addConstraint(Sketcher.Constraint("Equal", 8, 9))
sketch6.addConstraint(Sketcher.Constraint("Equal", 9, 10))
sketch6.addConstraint(Sketcher.Constraint("Equal", 11, 12))
sketch6.addConstraint(Sketcher.Constraint("Equal", 12, 13))
sketch6.addConstraint(Sketcher.Constraint("Equal", 13, 14))
sketch6.addConstraint(Sketcher.Constraint("Equal", 10, 16))
sketch6.addConstraint(Sketcher.Constraint("Equal", 16, 17))
sketch6.addConstraint(Sketcher.Constraint("Equal", 17, 18))
sketch6.addConstraint(Sketcher.Constraint("Equal", 18, 19))
sketch6.addConstraint(Sketcher.Constraint("Equal", 19, 20))
sketch6.addConstraint(Sketcher.Constraint("Equal", 20, 21))
sketch6.addConstraint(Sketcher.Constraint("Equal", 21, 22))
sketch6.addConstraint(Sketcher.Constraint("Equal", 22, 23))
sketch6.addConstraint(Sketcher.Constraint("Equal", 23, 24))
sketch6.addConstraint(Sketcher.Constraint("Equal", 24, 25))
sketch6.addConstraint(Sketcher.Constraint("Equal", 25, 26))
sketch6.addConstraint(Sketcher.Constraint("Equal", 27, 28))
sketch6.addConstraint(Sketcher.Constraint("Equal", 28, 29))
sketch6.addConstraint(Sketcher.Constraint("Equal", 29, 30))
sketch6.addConstraint(Sketcher.Constraint("Equal", 30, 31))
sketch6.addConstraint(Sketcher.Constraint("Equal", 31, 32))
sketch6.addConstraint(Sketcher.Constraint("Equal", 32, 33))
sketch6.addConstraint(Sketcher.Constraint("Equal", 33, 34))
sketch6.addConstraint(Sketcher.Constraint("Equal", 15, 35))
sketch6.addConstraint(Sketcher.Constraint("Equal", 35, 36))
sketch6.addConstraint(Sketcher.Constraint("Equal", 36, 37))
sketch6.addConstraint(Sketcher.Constraint("Horizontal", 1, 3, 6, 3))
sketch6.addConstraint(Sketcher.Constraint("Horizontal", 6, 3, 7, 3))
sketch6.addConstraint(Sketcher.Constraint("Horizontal", 7, 3, 8, 3))
sketch6.addConstraint(Sketcher.Constraint("Horizontal", 9, 3, 10, 3))
sketch6.addConstraint(Sketcher.Constraint("Horizontal", 11, 3, 12, 3))
sketch6.addConstraint(Sketcher.Constraint("Horizontal", 13, 3, 14, 3))
sketch6.addConstraint(Sketcher.Constraint("Horizontal", 10, 3, 15, 3))
sketch6.addConstraint(Sketcher.Constraint("Horizontal", 16, 3, 17, 3))
sketch6.addConstraint(Sketcher.Constraint("Horizontal", 18, 3, 19, 3))
sketch6.addConstraint(Sketcher.Constraint("Horizontal", 19, 3, 20, 3))
sketch6.addConstraint(Sketcher.Constraint("Horizontal", 20, 3, 21, 3))
sketch6.addConstraint(Sketcher.Constraint("Horizontal", 17, 3, 37, 3))
sketch6.addConstraint(Sketcher.Constraint("Vertical", 2, 3, 3, 3))
sketch6.addConstraint(Sketcher.Constraint("Vertical", 3, 3, 4, 3))
sketch6.addConstraint(Sketcher.Constraint("Vertical", 4, 3, 5, 3))
sketch6.addConstraint(Sketcher.Constraint("Vertical", 12, 3, 13, 3))
sketch6.addConstraint(Sketcher.Constraint("Vertical", 11, 3, 14, 3))
sketch6.addConstraint(Sketcher.Constraint("Vertical", 9, 3, 16, 3))
sketch6.addConstraint(Sketcher.Constraint("Vertical", 10, 3, 17, 3))
sketch6.addConstraint(Sketcher.Constraint("Vertical", 8, 3, 18, 3))
sketch6.addConstraint(Sketcher.Constraint("Vertical", 7, 3, 19, 3))
sketch6.addConstraint(Sketcher.Constraint("Vertical", 6, 3, 20, 3))
sketch6.addConstraint(Sketcher.Constraint("Vertical", 0, 3, 22, 3))
sketch6.addConstraint(Sketcher.Constraint("Vertical", 5, 3, 23, 3))
sketch6.addConstraint(Sketcher.Constraint("Vertical", 23, 3, 24, 3))
sketch6.addConstraint(Sketcher.Constraint("Vertical", 24, 3, 25, 3))
sketch6.addConstraint(Sketcher.Constraint("Vertical", 25, 3, 26, 3))
sketch6.addConstraint(Sketcher.Constraint("Vertical", 27, 3, 28, 3))
sketch6.addConstraint(Sketcher.Constraint("Vertical", 29, 3, 30, 3))
sketch6.addConstraint(Sketcher.Constraint("Vertical", 30, 3, 31, 3))
sketch6.addConstraint(Sketcher.Constraint("Vertical", 31, 3, 32, 3))
sketch6.addConstraint(Sketcher.Constraint("Vertical", 28, 3, 33, 3))
sketch6.addConstraint(Sketcher.Constraint("Vertical", 33, 3, 34, 3))
sketch6.addConstraint(Sketcher.Constraint("Vertical", 35, 3, 36, 3))
sketch6.addConstraint(Sketcher.Constraint("Vertical", 15, 3, 37, 3))
sketch6.addConstraint(Sketcher.Constraint("Diameter", 11, Q("8 mm")))
sketch6.addConstraint(Sketcher.Constraint("Diameter", 27, Q("6 mm")))
sketch6.addConstraint(Sketcher.Constraint("Diameter", 0, Q("5.99 mm")))
sketch6.addConstraint(Sketcher.Constraint("Diameter", 15, Q("6.99 mm")))
sketch6.addConstraint(Sketcher.Constraint("DistanceX", 0, 3, -1, 1, Q("14 mm")))
sketch6.addConstraint(Sketcher.Constraint("DistanceY", -1, 1, 0, 3, Q("44 mm")))
sketch6.addConstraint(Sketcher.Constraint("DistanceX", 1, 3, -1, 1, Q("170 mm")))
sketch6.addConstraint(Sketcher.Constraint("DistanceY", -1, 1, 1, 3, Q("327 mm")))
sketch6.addConstraint(Sketcher.Constraint("DistanceX", 2, 3, -1, 1, Q("202 mm")))
sketch6.addConstraint(Sketcher.Constraint("DistanceY", -1, 1, 2, 3, Q("292 mm")))
sketch6.addConstraint(Sketcher.Constraint("DistanceY", -1, 1, 3, 3, Q("272 mm")))
sketch6.addConstraint(Sketcher.Constraint("DistanceY", -1, 1, 4, 3, Q("218 mm")))
sketch6.addConstraint(Sketcher.Constraint("DistanceY", -1, 1, 5, 3, Q("192 mm")))
sketch6.addConstraint(Sketcher.Constraint("DistanceX", 6, 3, -1, 1, Q("130 mm")))
sketch6.addConstraint(Sketcher.Constraint("DistanceX", 7, 3, -1, 1, Q("115 mm")))
sketch6.addConstraint(Sketcher.Constraint("DistanceX", 8, 3, -1, 1, Q("65 mm")))
sketch6.addConstraint(Sketcher.Constraint("DistanceX", 9, 3, -1, 1, Q("52 mm")))
sketch6.addConstraint(Sketcher.Constraint("DistanceY", -1, 1, 9, 3, Q("278 mm")))
sketch6.addConstraint(Sketcher.Constraint("DistanceX", 10, 3, -1, 1, Q("18 mm")))
sketch6.addConstraint(Sketcher.Constraint("DistanceY", -1, 1, 16, 3, Q("52 mm")))
sketch6.addConstraint(Sketcher.Constraint("DistanceY", -1, 1, 18, 3, Q("3 mm")))
sketch6.addConstraint(Sketcher.Constraint("DistanceY", -1, 1, 22, 3, Q("286 mm")))
sketch6.addConstraint(Sketcher.Constraint("DistanceY", -1, 1, 23, 3, Q("38 mm")))
sketch6.addConstraint(Sketcher.Constraint("DistanceY", -1, 1, 24, 3, Q("58 mm")))
sketch6.addConstraint(Sketcher.Constraint("DistanceY", -1, 1, 25, 3, Q("112 mm")))
sketch6.addConstraint(Sketcher.Constraint("DistanceY", -1, 1, 26, 3, Q("138 mm")))
sketch6.addConstraint(Sketcher.Constraint("DistanceY", -1, 1, 27, 3, Q("212 mm")))
sketch6.addConstraint(Sketcher.Constraint("DistanceY", -1, 1, 28, 3, Q("248 mm")))
sketch6.addConstraint(Sketcher.Constraint("DistanceY", -1, 1, 29, 3, Q("177 mm")))
sketch6.addConstraint(Sketcher.Constraint("DistanceY", -1, 1, 30, 3, Q("213 mm")))
sketch6.addConstraint(Sketcher.Constraint("DistanceY", -1, 1, 31, 3, Q("117 mm")))
sketch6.addConstraint(Sketcher.Constraint("DistanceY", -1, 1, 32, 3, Q("153 mm")))
sketch6.addConstraint(Sketcher.Constraint("DistanceY", -1, 1, 33, 3, Q("82 mm")))
sketch6.addConstraint(Sketcher.Constraint("DistanceY", -1, 1, 34, 3, Q("118 mm")))
sketch6.addConstraint(Sketcher.Constraint("DistanceX", 11, 3, 12, 3, Q("42 mm")))
sketch6.addConstraint(Sketcher.Constraint("DistanceY", 13, 3, 12, 3, Q("157 mm")))
sketch6.addConstraint(Sketcher.Constraint("DistanceX", 12, 3, 15, 3, Q("103 mm")))
sketch6.addConstraint(Sketcher.Constraint("DistanceX", 12, 3, 27, 3, Q("18 mm")))
sketch6.addConstraint(Sketcher.Constraint("DistanceX", 29, 3, 11, 3, Q("18 mm")))
sketch6.addConstraint(Sketcher.Constraint("DistanceX", 35, 3, 15, 3, Q("40 mm")))
sketch6.addConstraint(Sketcher.Constraint("DistanceX", 11, 3, -1, 1, Q("148.5 mm")))
sketch6.addConstraint(Sketcher.Constraint("DistanceY", -1, 1, 11, 3, Q("243.5 mm")))
sketch6.addConstraint(Sketcher.Constraint("DistanceY", -1, 1, 35, 3, Q("326.5 mm")))
sketch6.addConstraint(Sketcher.Constraint("DistanceY", -1, 1, 36, 3, Q("3.5 mm")))
sketch6.addConstraint(Sketcher.Constraint("DistanceX", 21, 3, -1, 1, Q("171.504167 mm")))
pocket5 = body.newObject("PartDesign::Pocket", "Pocket004")
pocket5.Profile = sketch6
pocket5.Length = 3
pocket5.Reversed = True

sketch7 = body.newObject("Sketcher::SketchObject", "Sketch006")
sketch7.AttachmentSupport = (doc.getObject("XY_Plane"), [""])
sketch7.MapMode = "FlatFace"
sketch7.AttachmentOffset = App.Placement(App.Vector(0, 0, 6), App.Rotation())
sketch7.addGeometry(Part.Circle(App.Vector(-66.5, 10, 0), App.Vector(0, 0, 1), 1.5), False)
sketch7.addGeometry(Part.Circle(App.Vector(-66.5, 320, 0), App.Vector(0, 0, 1), 1.5), False)
add_polygon(sketch7, [(-39, 44), (-39, 7.1), (-17, 7.1), (-17, 44)])
add_polygon(sketch7, [(-79, 13), (-79, 7), (-71.5, 7), (-71.5, 13)])
add_polygon(sketch7, [(-61.5, 13), (-61.5, 7), (-54, 7), (-54, 13)])
add_polygon(sketch7, [(-61.5, 323), (-61.5, 317), (-54, 317), (-54, 323)])
add_polygon(sketch7, [(-79, 323), (-79, 317), (-71.5, 317), (-71.5, 323)])
add_polygon(sketch7, [(-39, 322.9), (-39, 286), (-17, 286), (-17, 322.9)])
sketch7.addConstraint(Sketcher.Constraint("Vertical", 2))
sketch7.addConstraint(Sketcher.Constraint("Horizontal", 3))
sketch7.addConstraint(Sketcher.Constraint("Vertical", 4))
sketch7.addConstraint(Sketcher.Constraint("Horizontal", 5))
sketch7.addConstraint(Sketcher.Constraint("Vertical", 6))
sketch7.addConstraint(Sketcher.Constraint("Horizontal", 7))
sketch7.addConstraint(Sketcher.Constraint("Vertical", 8))
sketch7.addConstraint(Sketcher.Constraint("Horizontal", 9))
sketch7.addConstraint(Sketcher.Constraint("Vertical", 10))
sketch7.addConstraint(Sketcher.Constraint("Horizontal", 11))
sketch7.addConstraint(Sketcher.Constraint("Vertical", 12))
sketch7.addConstraint(Sketcher.Constraint("Horizontal", 13))
sketch7.addConstraint(Sketcher.Constraint("Vertical", 14))
sketch7.addConstraint(Sketcher.Constraint("Horizontal", 15))
sketch7.addConstraint(Sketcher.Constraint("Vertical", 16))
sketch7.addConstraint(Sketcher.Constraint("Horizontal", 17))
sketch7.addConstraint(Sketcher.Constraint("Vertical", 18))
sketch7.addConstraint(Sketcher.Constraint("Horizontal", 19))
sketch7.addConstraint(Sketcher.Constraint("Vertical", 20))
sketch7.addConstraint(Sketcher.Constraint("Horizontal", 21))
sketch7.addConstraint(Sketcher.Constraint("Vertical", 22))
sketch7.addConstraint(Sketcher.Constraint("Horizontal", 23))
sketch7.addConstraint(Sketcher.Constraint("Vertical", 24))
sketch7.addConstraint(Sketcher.Constraint("Horizontal", 25))
sketch7.addConstraint(Sketcher.Constraint("Equal", 0, 1))
sketch7.addConstraint(Sketcher.Constraint("Horizontal", 7, 2, 10, 2))
sketch7.addConstraint(Sketcher.Constraint("Horizontal", 9, 2, 12, 2))
sketch7.addConstraint(Sketcher.Constraint("Horizontal", 15, 2, 18, 2))
sketch7.addConstraint(Sketcher.Constraint("Horizontal", 17, 2, 20, 2))
sketch7.addConstraint(Sketcher.Constraint("Vertical", 0, 3, 1, 3))
sketch7.addConstraint(Sketcher.Constraint("Vertical", 13, 2, 14, 2))
sketch7.addConstraint(Sketcher.Constraint("Vertical", 12, 2, 15, 2))
sketch7.addConstraint(Sketcher.Constraint("Vertical", 9, 2, 18, 2))
sketch7.addConstraint(Sketcher.Constraint("Vertical", 8, 2, 19, 2))
sketch7.addConstraint(Sketcher.Constraint("Vertical", 5, 2, 22, 2))
sketch7.addConstraint(Sketcher.Constraint("Vertical", 4, 2, 23, 2))
sketch7.addConstraint(Sketcher.Constraint("Equal", 9, 11))
sketch7.addConstraint(Sketcher.Constraint("Equal", 12, 14))
sketch7.addConstraint(Sketcher.Constraint("Equal", 4, 22))
sketch7.addConstraint(Sketcher.Constraint("Diameter", 0, Q("3 mm")))
sketch7.addConstraint(Sketcher.Constraint("DistanceX", 3, 1, 3, 2, Q("22 mm")))
sketch7.addConstraint(Sketcher.Constraint("DistanceY", 6, 2, 6, 1, Q("6 mm")))
sketch7.addConstraint(Sketcher.Constraint("DistanceX", 7, 1, 7, 2, Q("7.5 mm")))
sketch7.addConstraint(Sketcher.Constraint("DistanceY", -1, 1, 0, 3, Q("10 mm")))
sketch7.addConstraint(Sketcher.Constraint("DistanceY", -1, 1, 1, 3, Q("320 mm")))
sketch7.addConstraint(Sketcher.Constraint("DistanceX", 2, 2, -1, 1, Q("39 mm")))
sketch7.addConstraint(Sketcher.Constraint("DistanceY", -1, 1, 4, 2, Q("44 mm")))
sketch7.addConstraint(Sketcher.Constraint("DistanceX", 6, 2, -1, 1, Q("79 mm")))
sketch7.addConstraint(Sketcher.Constraint("DistanceY", -1, 1, 6, 2, Q("7 mm")))
sketch7.addConstraint(Sketcher.Constraint("DistanceX", 11, 2, -1, 1, Q("54 mm")))
sketch7.addConstraint(Sketcher.Constraint("DistanceY", -1, 1, 14, 2, Q("317 mm")))
sketch7.addConstraint(Sketcher.Constraint("DistanceY", -1, 1, 22, 2, Q("286 mm")))
sketch7.addConstraint(Sketcher.Constraint("DistanceX", 7, 2, 0, 3, Q("5 mm")))
sketch7.addConstraint(Sketcher.Constraint("DistanceY", 2, 2, 2, 1, Q("36.925 mm")))
pocket6 = body.newObject("PartDesign::Pocket", "Pocket005")
pocket6.Profile = sketch7
pocket6.Type = "ThroughAll"

sketch8 = body.newObject("Sketcher::SketchObject", "Sketch007")
sketch8.AttachmentSupport = (doc.getObject("XY_Plane"), [""])
sketch8.MapMode = "FlatFace"
sketch8.addGeometry(Part.Circle(App.Vector(-66.5, 320, 0), App.Vector(0, 0, 1), 3), False)
sketch8.addGeometry(Part.Circle(App.Vector(-66.5, 10, 0), App.Vector(0, 0, 1), 3), False)
sketch8.addConstraint(Sketcher.Constraint("Equal", 0, 1))
sketch8.addConstraint(Sketcher.Constraint("Vertical", 0, 3, 1, 3))
sketch8.addConstraint(Sketcher.Constraint("Diameter", 0, Q("5.99 mm")))
sketch8.addConstraint(Sketcher.Constraint("DistanceY", -1, 1, 0, 3, Q("320 mm")))
sketch8.addConstraint(Sketcher.Constraint("DistanceY", -1, 1, 1, 3, Q("10 mm")))
sketch8.addConstraint(Sketcher.Constraint("DistanceX", 0, 3, -1, 1, Q("66.5 mm")))
pocket7 = body.newObject("PartDesign::Pocket", "Pocket006")
pocket7.Profile = sketch8
pocket7.Length = 3
pocket7.Reversed = True

doc.recompute()
